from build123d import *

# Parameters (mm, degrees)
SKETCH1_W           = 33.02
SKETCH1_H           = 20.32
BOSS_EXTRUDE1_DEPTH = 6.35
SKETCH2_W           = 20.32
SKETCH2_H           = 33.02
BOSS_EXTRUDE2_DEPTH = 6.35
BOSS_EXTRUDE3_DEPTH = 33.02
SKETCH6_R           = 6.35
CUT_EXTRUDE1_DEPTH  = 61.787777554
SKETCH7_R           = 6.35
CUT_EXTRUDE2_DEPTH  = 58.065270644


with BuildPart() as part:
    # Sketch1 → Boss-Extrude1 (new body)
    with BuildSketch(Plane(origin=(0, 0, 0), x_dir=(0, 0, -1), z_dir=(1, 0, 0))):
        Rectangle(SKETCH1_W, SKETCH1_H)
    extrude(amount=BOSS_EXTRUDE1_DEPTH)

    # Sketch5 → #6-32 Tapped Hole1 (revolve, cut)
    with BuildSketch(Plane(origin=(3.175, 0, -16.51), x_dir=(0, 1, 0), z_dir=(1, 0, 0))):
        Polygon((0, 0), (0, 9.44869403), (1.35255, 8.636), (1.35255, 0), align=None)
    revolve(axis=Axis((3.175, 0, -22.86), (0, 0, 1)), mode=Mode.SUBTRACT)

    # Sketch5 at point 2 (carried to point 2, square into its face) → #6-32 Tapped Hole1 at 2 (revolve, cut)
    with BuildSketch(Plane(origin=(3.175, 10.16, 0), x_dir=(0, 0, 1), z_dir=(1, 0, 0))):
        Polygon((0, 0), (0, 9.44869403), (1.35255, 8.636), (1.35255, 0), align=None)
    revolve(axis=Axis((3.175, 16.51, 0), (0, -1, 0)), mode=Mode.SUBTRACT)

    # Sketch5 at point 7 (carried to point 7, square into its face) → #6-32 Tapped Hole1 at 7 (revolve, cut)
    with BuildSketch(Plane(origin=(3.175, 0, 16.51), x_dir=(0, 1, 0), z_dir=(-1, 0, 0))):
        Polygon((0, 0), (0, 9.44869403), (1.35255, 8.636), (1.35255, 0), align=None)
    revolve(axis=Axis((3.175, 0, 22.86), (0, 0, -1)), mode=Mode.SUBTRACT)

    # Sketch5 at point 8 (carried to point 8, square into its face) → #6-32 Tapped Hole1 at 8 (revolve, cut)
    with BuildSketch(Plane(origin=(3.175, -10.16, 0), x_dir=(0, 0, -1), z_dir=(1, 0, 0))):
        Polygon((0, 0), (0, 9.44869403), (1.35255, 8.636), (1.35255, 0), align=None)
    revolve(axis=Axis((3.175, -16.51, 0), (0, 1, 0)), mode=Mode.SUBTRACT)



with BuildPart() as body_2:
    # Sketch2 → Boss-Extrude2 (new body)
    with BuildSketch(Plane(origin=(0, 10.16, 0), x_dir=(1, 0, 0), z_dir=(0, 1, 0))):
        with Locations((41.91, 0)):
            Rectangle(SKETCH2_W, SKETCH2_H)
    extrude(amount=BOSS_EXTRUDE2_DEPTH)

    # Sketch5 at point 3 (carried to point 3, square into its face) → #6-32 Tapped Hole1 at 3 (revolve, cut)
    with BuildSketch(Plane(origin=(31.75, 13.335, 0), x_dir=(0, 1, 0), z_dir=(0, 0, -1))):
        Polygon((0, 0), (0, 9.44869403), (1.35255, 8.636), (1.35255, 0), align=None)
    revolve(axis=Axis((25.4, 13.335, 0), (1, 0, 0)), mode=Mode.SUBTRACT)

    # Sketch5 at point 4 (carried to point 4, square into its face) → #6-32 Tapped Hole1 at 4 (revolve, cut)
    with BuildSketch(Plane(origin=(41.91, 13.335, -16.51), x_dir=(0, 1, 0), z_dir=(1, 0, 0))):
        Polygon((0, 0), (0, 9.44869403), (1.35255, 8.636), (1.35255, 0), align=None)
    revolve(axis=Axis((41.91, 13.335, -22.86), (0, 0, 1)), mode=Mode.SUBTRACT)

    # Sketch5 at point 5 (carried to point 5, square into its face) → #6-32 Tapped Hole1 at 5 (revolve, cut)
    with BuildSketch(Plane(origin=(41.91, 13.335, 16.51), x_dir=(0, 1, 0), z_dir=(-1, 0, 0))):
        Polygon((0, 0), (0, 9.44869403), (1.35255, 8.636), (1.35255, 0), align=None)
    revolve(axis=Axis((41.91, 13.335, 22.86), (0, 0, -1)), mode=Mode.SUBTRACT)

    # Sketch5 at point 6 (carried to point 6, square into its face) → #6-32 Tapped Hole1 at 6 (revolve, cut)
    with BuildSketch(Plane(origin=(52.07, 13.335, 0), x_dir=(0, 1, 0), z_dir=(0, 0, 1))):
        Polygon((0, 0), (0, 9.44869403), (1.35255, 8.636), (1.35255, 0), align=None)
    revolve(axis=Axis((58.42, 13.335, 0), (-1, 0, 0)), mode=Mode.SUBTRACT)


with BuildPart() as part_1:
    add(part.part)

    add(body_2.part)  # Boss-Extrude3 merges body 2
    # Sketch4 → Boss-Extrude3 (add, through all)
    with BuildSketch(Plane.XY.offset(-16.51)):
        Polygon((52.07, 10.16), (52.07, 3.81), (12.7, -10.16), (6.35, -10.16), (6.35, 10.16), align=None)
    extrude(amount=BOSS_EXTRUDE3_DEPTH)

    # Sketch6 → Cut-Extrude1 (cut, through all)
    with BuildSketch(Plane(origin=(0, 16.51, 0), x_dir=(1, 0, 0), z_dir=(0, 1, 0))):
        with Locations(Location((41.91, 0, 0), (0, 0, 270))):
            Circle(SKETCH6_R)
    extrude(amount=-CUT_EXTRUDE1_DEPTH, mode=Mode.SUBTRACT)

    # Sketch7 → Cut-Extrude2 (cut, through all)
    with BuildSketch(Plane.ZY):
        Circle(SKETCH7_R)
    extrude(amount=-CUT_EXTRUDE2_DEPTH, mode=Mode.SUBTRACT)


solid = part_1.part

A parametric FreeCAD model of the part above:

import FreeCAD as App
import Part
import Sketcher

V = App.Vector
Q = App.Units.Quantity

doc = App.newDocument("Part")
body = doc.addObject("PartDesign::Body", "Body")

# Sketch on YZ plane
sketch1 = body.newObject("Sketcher::SketchObject", "Sketch")
sketch1.AttachmentSupport = (doc.getObject("YZ_Plane"), [""])
sketch1.MapMode = "FlatFace"
sketch1.addGeometry(Part.LineSegment(V(10.16, 16.51, 0), V(-10.16, 16.51, 0)), False)
sketch1.addGeometry(Part.LineSegment(V(-10.16, 16.51, 0), V(-10.16, -16.51, 0)), False)
sketch1.addGeometry(Part.LineSegment(V(-10.16, -16.51, 0), V(10.16, -16.51, 0)), False)
sketch1.addGeometry(Part.LineSegment(V(10.16, -16.51, 0), V(10.16, 16.51, 0)), False)
sketch1.addConstraint(Sketcher.Constraint("Coincident", 0, 2, 1, 1))
sketch1.addConstraint(Sketcher.Constraint("Coincident", 1, 2, 2, 1))
sketch1.addConstraint(Sketcher.Constraint("Coincident", 2, 2, 3, 1))
sketch1.addConstraint(Sketcher.Constraint("Coincident", 3, 2, 0, 1))
sketch1.addConstraint(Sketcher.Constraint("Horizontal", 0))
sketch1.addConstraint(Sketcher.Constraint("Vertical", 1))
sketch1.addConstraint(Sketcher.Constraint("Horizontal", 2))
sketch1.addConstraint(Sketcher.Constraint("Vertical", 3))
sketch1.addConstraint(Sketcher.Constraint("Symmetric", 0, 2, 2, 2, -1, 1))
sketch1.addConstraint(Sketcher.Constraint("DistanceX", 0, 2, 0, 1, Q("0.8 in")))
sketch1.addConstraint(Sketcher.Constraint("DistanceY", 1, 2, 1, 1, Q("1.3 in")))
pad1 = body.newObject("PartDesign::Pad", "Pad")
pad1.Profile = sketch1
pad1.Length = Q("0.25 in")

# Sketch on YZ plane
sketch2 = body.newObject("Sketcher::SketchObject", "Sketch001")
sketch2.AttachmentSupport = (doc.getObject("YZ_Plane"), [""])
sketch2.MapMode = "FlatFace"
sketch2.AttachmentOffset = App.Placement(V(0, 0, 0.125 * 25.4), App.Rotation())
sketch2.addGeometry(Part.LineSegment(V(0, -7.061306, 0), V(0, -16.51, 0)), False)
sketch2.addGeometry(Part.LineSegment(V(0, -16.51, 0), V(1.35255, -16.51, 0)), False)
sketch2.addGeometry(Part.LineSegment(V(1.35255, -16.51, 0), V(1.35255, -7.874, 0)), False)
sketch2.addGeometry(Part.LineSegment(V(1.35255, -7.874, 0), V(0, -7.061306, 0)), False)
sketch2.addConstraint(Sketcher.Constraint("Coincident", 0, 2, 1, 1))
sketch2.addConstraint(Sketcher.Constraint("Coincident", 1, 2, 2, 1))
sketch2.addConstraint(Sketcher.Constraint("Coincident", 2, 2, 3, 1))
sketch2.addConstraint(Sketcher.Constraint("Coincident", 3, 2, 0, 1))
sketch2.addConstraint(Sketcher.Constraint("Vertical", 0))
sketch2.addConstraint(Sketcher.Constraint("Horizontal", 1))
sketch2.addConstraint(Sketcher.Constraint("Vertical", 2))
sketch2.addConstraint(Sketcher.Constraint("PointOnObject", 0, 2, -2))
sketch2.addConstraint(Sketcher.Constraint("Angle", 3, Q("149 deg")))
sketch2.addConstraint(Sketcher.Constraint("DistanceY", 2, 1, 2, 2, Q("0.34 in")))
sketch2.addConstraint(Sketcher.Constraint("DistanceY", 0, 2, -1, 1, Q("0.65 in")))
sketch2.addConstraint(Sketcher.Constraint("DistanceX", 1, 1, 1, 2, Q("1.35255 mm")))
groove = body.newObject("PartDesign::Groove", "Groove")
groove.Profile = sketch2
groove.ReferenceAxis = (sketch2, ["V_Axis"])
groove.Angle = 360

# Sketch on YZ plane
sketch3 = body.newObject("Sketcher::SketchObject", "Sketch002")
sketch3.AttachmentSupport = (doc.getObject("YZ_Plane"), [""])
sketch3.MapMode = "FlatFace"
sketch3.AttachmentOffset = App.Placement(V(0, 0, 0.125 * 25.4), App.Rotation())
sketch3.addGeometry(Part.LineSegment(V(0.711306, 0, 0), V(10.16, 0, 0)), False)
sketch3.addGeometry(Part.LineSegment(V(10.16, 0, 0), V(10.16, 1.35255, 0)), False)
sketch3.addGeometry(Part.LineSegment(V(10.16, 1.35255, 0), V(1.524, 1.35255, 0)), False)
sketch3.addGeometry(Part.LineSegment(V(1.524, 1.35255, 0), V(0.711306, 0, 0)), False)
sketch3.addConstraint(Sketcher.Constraint("Coincident", 0, 2, 1, 1))
sketch3.addConstraint(Sketcher.Constraint("Coincident", 1, 2, 2, 1))
sketch3.addConstraint(Sketcher.Constraint("Coincident", 2, 2, 3, 1))
sketch3.addConstraint(Sketcher.Constraint("Coincident", 3, 2, 0, 1))
sketch3.addConstraint(Sketcher.Constraint("Horizontal", 0))
sketch3.addConstraint(Sketcher.Constraint("Vertical", 1))
sketch3.addConstraint(Sketcher.Constraint("Horizontal", 2))
sketch3.addConstraint(Sketcher.Constraint("PointOnObject", 0, 2, -1))
sketch3.addConstraint(Sketcher.Constraint("Angle", 3, Q("-121 deg")))
sketch3.addConstraint(Sketcher.Constraint("DistanceX", 2, 2, 2, 1, Q("0.34 in")))
sketch3.addConstraint(Sketcher.Constraint("DistanceX", -1, 1, 0, 2, Q("0.4 in")))
sketch3.addConstraint(Sketcher.Constraint("DistanceY", 1, 1, 1, 2, Q("1.35255 mm")))
groove2 = body.newObject("PartDesign::Groove", "Groove001")
groove2.Profile = sketch3
groove2.ReferenceAxis = (sketch3, ["H_Axis"])
groove2.Angle = 360

# Sketch on YZ plane
sketch4 = body.newObject("Sketcher::SketchObject", "Sketch003")
sketch4.AttachmentSupport = (doc.getObject("YZ_Plane"), [""])
sketch4.MapMode = "FlatFace"
sketch4.AttachmentOffset = App.Placement(V(0, 0, 0.125 * 25.4), App.Rotation())
sketch4.addGeometry(Part.LineSegment(V(0, 7.061306, 0), V(0, 16.51, 0)), False)
sketch4.addGeometry(Part.LineSegment(V(0, 16.51, 0), V(1.35255, 16.51, 0)), False)
sketch4.addGeometry(Part.LineSegment(V(1.35255, 16.51, 0), V(1.35255, 7.874, 0)), False)
sketch4.addGeometry(Part.LineSegment(V(1.35255, 7.874, 0), V(0, 7.061306, 0)), False)
sketch4.addConstraint(Sketcher.Constraint("Coincident", 0, 2, 1, 1))
sketch4.addConstraint(Sketcher.Constraint("Coincident", 1, 2, 2, 1))
sketch4.addConstraint(Sketcher.Constraint("Coincident", 2, 2, 3, 1))
sketch4.addConstraint(Sketcher.Constraint("Coincident", 3, 2, 0, 1))
sketch4.addConstraint(Sketcher.Constraint("Vertical", 0))
sketch4.addConstraint(Sketcher.Constraint("Horizontal", 1))
sketch4.addConstraint(Sketcher.Constraint("Vertical", 2))
sketch4.addConstraint(Sketcher.Constraint("PointOnObject", 0, 2, -2))
sketch4.addConstraint(Sketcher.Constraint("Angle", 3, Q("-149 deg")))
sketch4.addConstraint(Sketcher.Constraint("DistanceY", 2, 2, 2, 1, Q("0.34 in")))
sketch4.addConstraint(Sketcher.Constraint("DistanceY", -1, 1, 0, 2, Q("0.65 in")))
sketch4.addConstraint(Sketcher.Constraint("DistanceX", 1, 1, 1, 2, Q("1.35255 mm")))
groove3 = body.newObject("PartDesign::Groove", "Groove002")
groove3.Profile = sketch4
groove3.ReferenceAxis = (sketch4, ["V_Axis"])
groove3.Angle = 360

# Sketch on YZ plane
sketch5 = body.newObject("Sketcher::SketchObject", "Sketch004")
sketch5.AttachmentSupport = (doc.getObject("YZ_Plane"), [""])
sketch5.MapMode = "FlatFace"
sketch5.AttachmentOffset = App.Placement(V(0, 0, 0.125 * 25.4), App.Rotation())
sketch5.addGeometry(Part.LineSegment(V(-0.711306, 0, 0), V(-10.16, 0, 0)), False)
sketch5.addGeometry(Part.LineSegment(V(-10.16, 0, 0), V(-10.16, -1.35255, 0)), False)
sketch5.addGeometry(Part.LineSegment(V(-10.16, -1.35255, 0), V(-1.524, -1.35255, 0)), False)
sketch5.addGeometry(Part.LineSegment(V(-1.524, -1.35255, 0), V(-0.711306, 0, 0)), False)
sketch5.addConstraint(Sketcher.Constraint("Coincident", 0, 2, 1, 1))
sketch5.addConstraint(Sketcher.Constraint("Coincident", 1, 2, 2, 1))
sketch5.addConstraint(Sketcher.Constraint("Coincident", 2, 2, 3, 1))
sketch5.addConstraint(Sketcher.Constraint("Coincident", 3, 2, 0, 1))
sketch5.addConstraint(Sketcher.Constraint("Horizontal", 0))
sketch5.addConstraint(Sketcher.Constraint("Vertical", 1))
sketch5.addConstraint(Sketcher.Constraint("Horizontal", 2))
sketch5.addConstraint(Sketcher.Constraint("PointOnObject", 0, 2, -1))
sketch5.addConstraint(Sketcher.Constraint("Angle", 3, Q("59 deg")))
sketch5.addConstraint(Sketcher.Constraint("DistanceX", 2, 1, 2, 2, Q("0.34 in")))
sketch5.addConstraint(Sketcher.Constraint("DistanceX", 0, 2, -1, 1, Q("0.4 in")))
sketch5.addConstraint(Sketcher.Constraint("DistanceY", 1, 2, 1, 1, Q("1.35255 mm")))
groove4 = body.newObject("PartDesign::Groove", "Groove003")
groove4.Profile = sketch5
groove4.ReferenceAxis = (sketch5, ["H_Axis"])
groove4.Angle = 360
body2 = doc.addObject("PartDesign::Body", "Body001")

# Sketch on XZ plane
sketch6 = body2.newObject("Sketcher::SketchObject", "Sketch005")
sketch6.AttachmentSupport = (doc.getObject("XZ_Plane001"), [""])
sketch6.MapMode = "FlatFace"
sketch6.AttachmentOffset = App.Placement(V(0, 0, -0.4 * 25.4), App.Rotation())
sketch6.addGeometry(Part.LineSegment(V(31.75, -16.51, 0), V(31.75, 16.51, 0)), False)
sketch6.addGeometry(Part.LineSegment(V(31.75, 16.51, 0), V(52.07, 16.51, 0)), False)
sketch6.addGeometry(Part.LineSegment(V(52.07, 16.51, 0), V(52.07, -16.51, 0)), False)
sketch6.addGeometry(Part.LineSegment(V(52.07, -16.51, 0), V(31.75, -16.51, 0)), False)
sketch6.addConstraint(Sketcher.Constraint("Coincident", 0, 2, 1, 1))
sketch6.addConstraint(Sketcher.Constraint("Coincident", 1, 2, 2, 1))
sketch6.addConstraint(Sketcher.Constraint("Coincident", 2, 2, 3, 1))
sketch6.addConstraint(Sketcher.Constraint("Coincident", 3, 2, 0, 1))
sketch6.addConstraint(Sketcher.Constraint("Vertical", 0))
sketch6.addConstraint(Sketcher.Constraint("Horizontal", 1))
sketch6.addConstraint(Sketcher.Constraint("Vertical", 2))
sketch6.addConstraint(Sketcher.Constraint("Horizontal", 3))
sketch6.addConstraint(Sketcher.Constraint("DistanceX", 1, 1, 1, 2, Q("0.8 in")))
sketch6.addConstraint(Sketcher.Constraint("DistanceY", 0, 1, 0, 2, Q("1.3 in")))
sketch6.addConstraint(Sketcher.Constraint("DistanceX", -1, 1, 0, 2, Q("1.25 in")))
sketch6.addConstraint(Sketcher.Constraint("DistanceY", -1, 1, 0, 2, Q("0.65 in")))
pad2 = body2.newObject("PartDesign::Pad", "Pad001")
pad2.Profile = sketch6
pad2.Length = Q("0.25 in")
pad2.Reversed = True

# Sketch on XY plane
sketch7 = body2.newObject("Sketcher::SketchObject", "Sketch006")
sketch7.AttachmentSupport = (doc.getObject("XY_Plane001"), [""])
sketch7.MapMode = "FlatFace"
sketch7.addGeometry(Part.LineSegment(V(41.198694, 13.335, 0), V(31.75, 13.335, 0)), False)
sketch7.addGeometry(Part.LineSegment(V(31.75, 13.335, 0), V(31.75, 14.68755, 0)), False)
sketch7.addGeometry(Part.LineSegment(V(31.75, 14.68755, 0), V(40.386, 14.68755, 0)), False)
sketch7.addGeometry(Part.LineSegment(V(40.386, 14.68755, 0), V(41.198694, 13.335, 0)), False)
sketch7.addGeometry(Part.LineSegment(V(31.75, 13.335, 0), V(41.198694, 13.335, 0)), True)  # axis
sketch7.addConstraint(Sketcher.Constraint("Coincident", 0, 2, 1, 1))
sketch7.addConstraint(Sketcher.Constraint("Coincident", 1, 2, 2, 1))
sketch7.addConstraint(Sketcher.Constraint("Coincident", 2, 2, 3, 1))
sketch7.addConstraint(Sketcher.Constraint("Coincident", 3, 2, 0, 1))
sketch7.addConstraint(Sketcher.Constraint("Horizontal", 0))
sketch7.addConstraint(Sketcher.Constraint("Vertical", 1))
sketch7.addConstraint(Sketcher.Constraint("Horizontal", 2))
sketch7.addConstraint(Sketcher.Constraint("Horizontal", 4))
sketch7.addConstraint(Sketcher.Constraint("Coincident", 4, 1, 0, 2))
sketch7.addConstraint(Sketcher.Constraint("Equal", 0, 4))
sketch7.addConstraint(Sketcher.Constraint("Angle", 3, Q("-59 deg")))
sketch7.addConstraint(Sketcher.Constraint("DistanceX", 2, 1, 2, 2, Q("0.34 in")))
sketch7.addConstraint(Sketcher.Constraint("DistanceX", -1, 1, 0, 2, Q("1.25 in")))
sketch7.addConstraint(Sketcher.Constraint("DistanceY", -1, 1, 0, 2, Q("0.525 in")))
sketch7.addConstraint(Sketcher.Constraint("DistanceY", 1, 1, 1, 2, Q("1.35255 mm")))
groove5 = body2.newObject("PartDesign::Groove", "Groove004")
groove5.Profile = sketch7
groove5.ReferenceAxis = (sketch7, ["Axis0"])
groove5.Angle = 360

# Sketch on YZ plane
sketch8 = body2.newObject("Sketcher::SketchObject", "Sketch007")
sketch8.AttachmentSupport = (doc.getObject("YZ_Plane001"), [""])
sketch8.MapMode = "FlatFace"
sketch8.AttachmentOffset = App.Placement(V(0, 0, 1.65 * 25.4), App.Rotation())
sketch8.addGeometry(Part.LineSegment(V(13.335, -7.061306, 0), V(13.335, -16.51, 0)), False)
sketch8.addGeometry(Part.LineSegment(V(13.335, -16.51, 0), V(14.68755, -16.51, 0)), False)
sketch8.addGeometry(Part.LineSegment(V(14.68755, -16.51, 0), V(14.68755, -7.874, 0)), False)
sketch8.addGeometry(Part.LineSegment(V(14.68755, -7.874, 0), V(13.335, -7.061306, 0)), False)
sketch8.addGeometry(Part.LineSegment(V(13.335, -16.51, 0), V(13.335, -7.061306, 0)), True)  # axis
sketch8.addConstraint(Sketcher.Constraint("Coincident", 0, 2, 1, 1))
sketch8.addConstraint(Sketcher.Constraint("Coincident", 1, 2, 2, 1))
sketch8.addConstraint(Sketcher.Constraint("Coincident", 2, 2, 3, 1))
sketch8.addConstraint(Sketcher.Constraint("Coincident", 3, 2, 0, 1))
sketch8.addConstraint(Sketcher.Constraint("Vertical", 0))
sketch8.addConstraint(Sketcher.Constraint("Horizontal", 1))
sketch8.addConstraint(Sketcher.Constraint("Vertical", 2))
sketch8.addConstraint(Sketcher.Constraint("Vertical", 4))
sketch8.addConstraint(Sketcher.Constraint("Coincident", 4, 1, 0, 2))
sketch8.addConstraint(Sketcher.Constraint("Equal", 0, 4))
sketch8.addConstraint(Sketcher.Constraint("Angle", 3, Q("149 deg")))
sketch8.addConstraint(Sketcher.Constraint("DistanceY", 2, 1, 2, 2, Q("0.34 in")))
sketch8.addConstraint(Sketcher.Constraint("DistanceY", 0, 2, -1, 1, Q("0.65 in")))
sketch8.addConstraint(Sketcher.Constraint("DistanceX", -1, 1, 0, 2, Q("0.525 in")))
sketch8.addConstraint(Sketcher.Constraint("DistanceX", 1, 1, 1, 2, Q("1.35255 mm")))
groove6 = body2.newObject("PartDesign::Groove", "Groove005")
groove6.Profile = sketch8
groove6.ReferenceAxis = (sketch8, ["Axis0"])
groove6.Angle = 360

# Sketch on YZ plane
sketch9 = body2.newObject("Sketcher::SketchObject", "Sketch008")
sketch9.AttachmentSupport = (doc.getObject("YZ_Plane001"), [""])
sketch9.MapMode = "FlatFace"
sketch9.AttachmentOffset = App.Placement(V(0, 0, 1.65 * 25.4), App.Rotation())
sketch9.addGeometry(Part.LineSegment(V(13.335, 7.061306, 0), V(13.335, 16.51, 0)), False)
sketch9.addGeometry(Part.LineSegment(V(13.335, 16.51, 0), V(14.68755, 16.51, 0)), False)
sketch9.addGeometry(Part.LineSegment(V(14.68755, 16.51, 0), V(14.68755, 7.874, 0)), False)
sketch9.addGeometry(Part.LineSegment(V(14.68755, 7.874, 0), V(13.335, 7.061306, 0)), False)
sketch9.addGeometry(Part.LineSegment(V(13.335, 16.51, 0), V(13.335, 7.061306, 0)), True)  # axis
sketch9.addConstraint(Sketcher.Constraint("Coincident", 0, 2, 1, 1))
sketch9.addConstraint(Sketcher.Constraint("Coincident", 1, 2, 2, 1))
sketch9.addConstraint(Sketcher.Constraint("Coincident", 2, 2, 3, 1))
sketch9.addConstraint(Sketcher.Constraint("Coincident", 3, 2, 0, 1))
sketch9.addConstraint(Sketcher.Constraint("Vertical", 0))
sketch9.addConstraint(Sketcher.Constraint("Horizontal", 1))
sketch9.addConstraint(Sketcher.Constraint("Vertical", 2))
sketch9.addConstraint(Sketcher.Constraint("Vertical", 4))
sketch9.addConstraint(Sketcher.Constraint("Coincident", 4, 1, 0, 2))
sketch9.addConstraint(Sketcher.Constraint("Equal", 0, 4))
sketch9.addConstraint(Sketcher.Constraint("Angle", 3, Q("-149 deg")))
sketch9.addConstraint(Sketcher.Constraint("DistanceY", 2, 2, 2, 1, Q("0.34 in")))
sketch9.addConstraint(Sketcher.Constraint("DistanceY", -1, 1, 0, 2, Q("0.65 in")))
sketch9.addConstraint(Sketcher.Constraint("DistanceX", -1, 1, 0, 2, Q("0.525 in")))
sketch9.addConstraint(Sketcher.Constraint("DistanceX", 1, 1, 1, 2, Q("1.35255 mm")))
groove7 = body2.newObject("PartDesign::Groove", "Groove006")
groove7.Profile = sketch9
groove7.ReferenceAxis = (sketch9, ["Axis0"])
groove7.Angle = 360

# Sketch on XY plane
sketch10 = body2.newObject("Sketcher::SketchObject", "Sketch009")
sketch10.AttachmentSupport = (doc.getObject("XY_Plane001"), [""])
sketch10.MapMode = "FlatFace"
sketch10.addGeometry(Part.LineSegment(V(42.621306, 13.335, 0), V(52.07, 13.335, 0)), False)
sketch10.addGeometry(Part.LineSegment(V(52.07, 13.335, 0), V(52.07, 14.68755, 0)), False)
sketch10.addGeometry(Part.LineSegment(V(52.07, 14.68755, 0), V(43.434, 14.68755, 0)), False)
sketch10.addGeometry(Part.LineSegment(V(43.434, 14.68755, 0), V(42.621306, 13.335, 0)), False)
sketch10.addGeometry(Part.LineSegment(V(52.07, 13.335, 0), V(42.621306, 13.335, 0)), True)  # axis
sketch10.addConstraint(Sketcher.Constraint("Coincident", 0, 2, 1, 1))
sketch10.addConstraint(Sketcher.Constraint("Coincident", 1, 2, 2, 1))
sketch10.addConstraint(Sketcher.Constraint("Coincident", 2, 2, 3, 1))
sketch10.addConstraint(Sketcher.Constraint("Coincident", 3, 2, 0, 1))
sketch10.addConstraint(Sketcher.Constraint("Horizontal", 0))
sketch10.addConstraint(Sketcher.Constraint("Vertical", 1))
sketch10.addConstraint(Sketcher.Constraint("Horizontal", 2))
sketch10.addConstraint(Sketcher.Constraint("Horizontal", 4))
sketch10.addConstraint(Sketcher.Constraint("Coincident", 4, 1, 0, 2))
sketch10.addConstraint(Sketcher.Constraint("Equal", 0, 4))
sketch10.addConstraint(Sketcher.Constraint("Angle", 3, Q("-121 deg")))
sketch10.addConstraint(Sketcher.Constraint("DistanceX", 2, 2, 2, 1, Q("0.34 in")))
sketch10.addConstraint(Sketcher.Constraint("DistanceX", -1, 1, 0, 2, Q("2.05 in")))
sketch10.addConstraint(Sketcher.Constraint("DistanceY", -1, 1, 0, 2, Q("0.525 in")))
sketch10.addConstraint(Sketcher.Constraint("DistanceY", 1, 1, 1, 2, Q("1.35255 mm")))
groove8 = body2.newObject("PartDesign::Groove", "Groove007")
groove8.Profile = sketch10
groove8.ReferenceAxis = (sketch10, ["Axis0"])
groove8.Angle = 360
body.AllowCompound = True
doc.recompute()

boolean = body.newObject("PartDesign::Boolean", "Boolean")
boolean.Type = "Fuse"
boolean.addObjects([body2])

# Sketch on XY plane
sketch11 = body.newObject("Sketcher::SketchObject", "Sketch010")
sketch11.AttachmentSupport = (doc.getObject("XY_Plane"), [""])
sketch11.MapMode = "FlatFace"
sketch11.AttachmentOffset = App.Placement(V(0, 0, -0.65 * 25.4), App.Rotation())
sketch11.addGeometry(Part.LineSegment(V(52.07, 3.81, 0), V(52.07, 10.16, 0)), False)
sketch11.addGeometry(Part.LineSegment(V(52.07, 10.16, 0), V(6.35, 10.16, 0)), False)
sketch11.addGeometry(Part.LineSegment(V(6.35, 10.16, 0), V(6.35, -10.16, 0)), False)
sketch11.addGeometry(Part.LineSegment(V(6.35, -10.16, 0), V(12.7, -10.16, 0)), False)
sketch11.addGeometry(Part.LineSegment(V(12.7, -10.16, 0), V(52.07, 3.81, 0)), False)
sketch11.addConstraint(Sketcher.Constraint("Coincident", 0, 2, 1, 1))
sketch11.addConstraint(Sketcher.Constraint("Coincident", 1, 2, 2, 1))
sketch11.addConstraint(Sketcher.Constraint("Coincident", 2, 2, 3, 1))
sketch11.addConstraint(Sketcher.Constraint("Coincident", 3, 2, 4, 1))
sketch11.addConstraint(Sketcher.Constraint("Coincident", 4, 2, 0, 1))
sketch11.addConstraint(Sketcher.Constraint("Vertical", 0))
sketch11.addConstraint(Sketcher.Constraint("Horizontal", 1))
sketch11.addConstraint(Sketcher.Constraint("Vertical", 2))
sketch11.addConstraint(Sketcher.Constraint("Horizontal", 3))
sketch11.addConstraint(Sketcher.Constraint("Equal", 3, 0))
sketch11.addConstraint(Sketcher.Constraint("DistanceX", 1, 2, 1, 1, Q("1.8 in")))
sketch11.addConstraint(Sketcher.Constraint("DistanceY", 2, 2, 2, 1, Q("0.8 in")))
sketch11.addConstraint(Sketcher.Constraint("DistanceX", 3, 1, 3, 2, Q("0.25 in")))
sketch11.addConstraint(Sketcher.Constraint("DistanceY", -1, 1, 0, 2, Q("0.4 in")))
sketch11.addConstraint(Sketcher.Constraint("DistanceX", -1, 1, 3, 2, Q("0.5 in")))
pad3 = body.newObject("PartDesign::Pad", "Pad002")
pad3.Profile = sketch11
pad3.Length = Q("1.3 in")

# Sketch on XZ plane
sketch12 = body.newObject("Sketcher::SketchObject", "Sketch011")
sketch12.AttachmentSupport = (doc.getObject("XZ_Plane"), [""])
sketch12.MapMode = "FlatFace"
sketch12.AttachmentOffset = App.Placement(V(0, 0, -0.65 * 25.4), App.Rotation())
sketch12.addGeometry(Part.Circle(V(41.91, 0, 0), V(0, 0, 1), 6.35), False)
sketch12.addConstraint(Sketcher.Constraint("PointOnObject", 0, 3, -1))
sketch12.addConstraint(Sketcher.Constraint("Diameter", 0, Q("0.5 in")))
sketch12.addConstraint(Sketcher.Constraint("DistanceX", -1, 1, 0, 3, Q("1.65 in")))
pocket1 = body.newObject("PartDesign::Pocket", "Pocket")
pocket1.Profile = sketch12
pocket1.Type = "ThroughAll"
pocket1.Reversed = True

# Sketch on YZ plane
sketch13 = body.newObject("Sketcher::SketchObject", "Sketch012")
sketch13.AttachmentSupport = (doc.getObject("YZ_Plane"), [""])
sketch13.MapMode = "FlatFace"
sketch13.addGeometry(Part.Circle(V(0, 0, 0), V(0, 0, 1), 6.35), False)
sketch13.addConstraint(Sketcher.Constraint("Coincident", 0, 3, -1, 1))
sketch13.addConstraint(Sketcher.Constraint("Diameter", 0, Q("0.5 in")))
pocket2 = body.newObject("PartDesign::Pocket", "Pocket001")
pocket2.Profile = sketch13
pocket2.Type = "ThroughAll"
pocket2.Reversed = True

doc.recompute()
